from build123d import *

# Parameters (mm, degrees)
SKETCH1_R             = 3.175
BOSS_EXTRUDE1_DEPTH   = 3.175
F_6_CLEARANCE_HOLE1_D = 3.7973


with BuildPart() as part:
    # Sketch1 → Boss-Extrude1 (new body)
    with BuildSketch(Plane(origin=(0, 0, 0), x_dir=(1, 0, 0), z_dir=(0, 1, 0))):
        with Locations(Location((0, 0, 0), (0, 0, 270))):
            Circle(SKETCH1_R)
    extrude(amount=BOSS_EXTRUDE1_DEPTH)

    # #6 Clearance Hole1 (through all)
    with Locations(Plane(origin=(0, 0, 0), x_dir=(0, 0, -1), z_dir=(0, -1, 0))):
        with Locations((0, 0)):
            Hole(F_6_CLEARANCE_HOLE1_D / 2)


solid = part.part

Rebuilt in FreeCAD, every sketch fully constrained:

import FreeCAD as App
import Part
import Sketcher
from FreeCAD import Vector
Q = App.Units.Quantity

doc = App.newDocument("Part")
body = doc.addObject("PartDesign::Body", "Body")

# Sketch on XZ plane
sketch1 = doc.addObject("Sketcher::SketchObject", "Sketch")
body.addObject(sketch1)
sketch1.AttachmentSupport = (doc.XZ_Plane, [""])
sketch1.MapMode = "FlatFace"
sketch1.addGeometry(Part.Circle(Vector(0, 0, 0), Vector(0, 0, 1), 3.2), False)
sketch1.addConstraint([
    Sketcher.Constraint("Coincident", 0, 3, -1, 1),
    Sketcher.Constraint("Diameter", 0, Q("0.25 in")),
])
pad1 = doc.addObject("PartDesign::Pad", "Pad")
body.addObject(pad1)
pad1.Profile = sketch1
pad1.Length = Q("0.125 in")
pad1.Reversed = True

# Sketch on XZ plane
sketch2 = doc.addObject("Sketcher::SketchObject", "Sketch001")
body.addObject(sketch2)
sketch2.AttachmentSupport = (doc.XZ_Plane, [""])
sketch2.MapMode = "FlatFace"
sketch2.addGeometry(Part.Circle(Vector(0, 0, 0), Vector(0, 0, 1), 1.9), False)
sketch2.addConstraint([
    Sketcher.Constraint("Coincident", 0, 3, -1, 1),
    Sketcher.Constraint("Diameter", 0, Q("0.1495 in")),
])
doc.recompute()
hole = doc.addObject("PartDesign::Hole", "Hole")
body.addObject(hole)
hole.Profile = sketch2
hole.ThreadType = "None"
hole.Diameter = Q("0.1495 in")
hole.DepthType = "ThroughAll"

doc.recompute()
